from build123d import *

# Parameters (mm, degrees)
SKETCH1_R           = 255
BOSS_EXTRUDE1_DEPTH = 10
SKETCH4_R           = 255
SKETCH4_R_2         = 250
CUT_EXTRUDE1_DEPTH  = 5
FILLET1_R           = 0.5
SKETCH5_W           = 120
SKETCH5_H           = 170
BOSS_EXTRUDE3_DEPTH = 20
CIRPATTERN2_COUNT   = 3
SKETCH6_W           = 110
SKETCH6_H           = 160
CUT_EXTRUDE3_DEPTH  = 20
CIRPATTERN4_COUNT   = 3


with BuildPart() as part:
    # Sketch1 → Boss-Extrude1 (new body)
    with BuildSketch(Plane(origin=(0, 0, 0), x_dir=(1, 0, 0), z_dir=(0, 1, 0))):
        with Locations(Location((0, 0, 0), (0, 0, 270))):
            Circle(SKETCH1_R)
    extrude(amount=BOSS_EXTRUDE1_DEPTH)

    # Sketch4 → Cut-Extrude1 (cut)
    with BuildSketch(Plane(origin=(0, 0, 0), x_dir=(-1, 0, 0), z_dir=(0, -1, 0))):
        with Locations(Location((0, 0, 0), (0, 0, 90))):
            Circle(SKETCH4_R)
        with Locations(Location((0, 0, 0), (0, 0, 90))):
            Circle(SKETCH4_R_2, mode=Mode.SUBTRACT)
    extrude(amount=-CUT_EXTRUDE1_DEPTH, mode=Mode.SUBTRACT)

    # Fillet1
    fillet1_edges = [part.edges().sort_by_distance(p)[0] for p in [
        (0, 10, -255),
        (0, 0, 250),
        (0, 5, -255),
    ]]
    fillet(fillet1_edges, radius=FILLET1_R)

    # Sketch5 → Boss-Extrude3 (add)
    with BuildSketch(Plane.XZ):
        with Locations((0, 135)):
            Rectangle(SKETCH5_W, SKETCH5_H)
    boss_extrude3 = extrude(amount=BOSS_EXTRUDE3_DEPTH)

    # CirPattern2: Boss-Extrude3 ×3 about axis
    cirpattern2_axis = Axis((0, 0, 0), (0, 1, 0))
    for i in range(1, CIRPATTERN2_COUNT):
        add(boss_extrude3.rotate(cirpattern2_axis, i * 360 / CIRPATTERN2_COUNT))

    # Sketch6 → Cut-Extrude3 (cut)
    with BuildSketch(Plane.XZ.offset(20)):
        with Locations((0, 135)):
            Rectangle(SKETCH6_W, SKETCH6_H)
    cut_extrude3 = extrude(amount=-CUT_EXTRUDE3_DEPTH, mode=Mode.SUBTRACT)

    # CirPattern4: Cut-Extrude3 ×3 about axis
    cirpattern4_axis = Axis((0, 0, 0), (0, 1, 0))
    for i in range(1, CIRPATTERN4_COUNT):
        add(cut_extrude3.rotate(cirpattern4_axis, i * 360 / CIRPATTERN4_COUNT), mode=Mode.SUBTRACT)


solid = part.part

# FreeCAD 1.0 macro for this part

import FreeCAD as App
import Part
import Sketcher
Q = App.Units.Quantity


def edges_at(feature, points):
    """Names of the edges that pass closest to the given points."""
    edges = feature.Shape.Edges
    near = lambda p: min(range(len(edges)), key=lambda i: edges[i].distToShape(Part.Vertex(*p))[0])
    return sorted({f"Edge{near(p) + 1}" for p in points})


def add_polygon(sketch, points):
    """Adds a closed chain of lines whose ends are joined by coincident constraints."""
    first, n = sketch.GeometryCount, len(points)
    for a, b in zip(points, points[1:] + points[:1]):
        sketch.addGeometry(Part.LineSegment(App.Vector(*a, 0), App.Vector(*b, 0)), False)
    for i in range(n):
        sketch.addConstraint(Sketcher.Constraint("Coincident", first + i, 2, first + (i + 1) % n, 1))

doc = App.newDocument("Part")
body = doc.addObject("PartDesign::Body", "Body")

# Sketch on XZ plane
sketch1 = body.newObject("Sketcher::SketchObject", "Sketch")
sketch1.AttachmentSupport = (doc.getObject("XZ_Plane"), [""])
sketch1.MapMode = "FlatFace"
sketch1.addGeometry(Part.Circle(App.Vector(0, 0, 0), App.Vector(0, 0, 1), 255), False)
sketch1.addConstraint([
    Sketcher.Constraint("Coincident", 0, 3, -1, 1),
    Sketcher.Constraint("Diameter", 0, Q("510 mm")),
])
pad1 = body.newObject("PartDesign::Pad", "Pad")
pad1.Profile = sketch1
pad1.Length = 10
pad1.Reversed = True

# Sketch on XZ plane
sketch2 = body.newObject("Sketcher::SketchObject", "Sketch001")
sketch2.AttachmentSupport = (doc.getObject("XZ_Plane"), [""])
sketch2.MapMode = "FlatFace"
sketch2.addGeometry([
    Part.Circle(App.Vector(0, 0, 0), App.Vector(0, 0, 1), 255),
    Part.Circle(App.Vector(0, 0, 0), App.Vector(0, 0, 1), 250),
], False)
sketch2.addConstraint([
    Sketcher.Constraint("Coincident", 0, 3, -1, 1),
    Sketcher.Constraint("Coincident", 1, 3, -1, 1),
    Sketcher.Constraint("Diameter", 0, Q("510 mm")),
    Sketcher.Constraint("Diameter", 1, Q("500 mm")),
])
pocket1 = body.newObject("PartDesign::Pocket", "Pocket")
pocket1.Profile = sketch2
pocket1.Length = 5
doc.recompute()

fillet = body.newObject("PartDesign::Fillet", "Fillet")
fillet.Base = (pocket1, edges_at(pocket1, [(0, 10, -255), (0, 0, 250), (0, 5, -255)]))
fillet.Radius = 0.5

# Sketch on XZ plane
sketch3 = body.newObject("Sketcher::SketchObject", "Sketch002")
sketch3.AttachmentSupport = (doc.getObject("XZ_Plane"), [""])
sketch3.MapMode = "FlatFace"
add_polygon(sketch3, [(-60, 220), (-60, 50), (60, 50), (60, 220)])  # lines 0-3
sketch3.addConstraint([
    Sketcher.Constraint("Vertical", 0),
    Sketcher.Constraint("Horizontal", 1),
    Sketcher.Constraint("Vertical", 2),
    Sketcher.Constraint("Horizontal", 3),
    Sketcher.Constraint("DistanceX", 1, 1, 1, 2, Q("120 mm")),
    Sketcher.Constraint("DistanceY", 0, 2, 0, 1, Q("170 mm")),
    Sketcher.Constraint("DistanceX", 0, 2, -1, 1, Q("60 mm")),
    Sketcher.Constraint("DistanceY", -1, 1, 0, 2, Q("50 mm")),
])
pad2 = body.newObject("PartDesign::Pad", "Pad001")
pad2.Profile = sketch3
pad2.Length = 20
doc.recompute()

polarpattern = body.newObject("PartDesign::PolarPattern", "PolarPattern")
polarpattern.Originals = [pad2]
polarpattern.Axis = (doc.getObject("Y_Axis"), [""])
polarpattern.Angle = 360
polarpattern.Occurrences = 3
body.Tip = polarpattern

# Sketch on XZ plane
sketch4 = body.newObject("Sketcher::SketchObject", "Sketch003")
sketch4.AttachmentSupport = (doc.getObject("XZ_Plane"), [""])
sketch4.MapMode = "FlatFace"
sketch4.AttachmentOffset = App.Placement(App.Vector(0, 0, 20), App.Rotation())
add_polygon(sketch4, [(-55, 215), (-55, 55), (55, 55), (55, 215)])  # lines 0-3
sketch4.addConstraint([
    Sketcher.Constraint("Vertical", 0),
    Sketcher.Constraint("Horizontal", 1),
    Sketcher.Constraint("Vertical", 2),
    Sketcher.Constraint("Horizontal", 3),
    Sketcher.Constraint("DistanceX", 1, 1, 1, 2, Q("110 mm")),
    Sketcher.Constraint("DistanceY", 0, 2, 0, 1, Q("160 mm")),
    Sketcher.Constraint("DistanceX", 0, 2, -1, 1, Q("55 mm")),
    Sketcher.Constraint("DistanceY", -1, 1, 0, 2, Q("55 mm")),
])
pocket2 = body.newObject("PartDesign::Pocket", "Pocket001")
pocket2.Profile = sketch4
pocket2.Length = 20
doc.recompute()

polarpattern2 = body.newObject("PartDesign::PolarPattern", "PolarPattern001")
polarpattern2.Originals = [pocket2]
polarpattern2.Axis = (doc.getObject("Y_Axis"), [""])
polarpattern2.Angle = 360
polarpattern2.Occurrences = 3
body.Tip = polarpattern2

doc.recompute()
